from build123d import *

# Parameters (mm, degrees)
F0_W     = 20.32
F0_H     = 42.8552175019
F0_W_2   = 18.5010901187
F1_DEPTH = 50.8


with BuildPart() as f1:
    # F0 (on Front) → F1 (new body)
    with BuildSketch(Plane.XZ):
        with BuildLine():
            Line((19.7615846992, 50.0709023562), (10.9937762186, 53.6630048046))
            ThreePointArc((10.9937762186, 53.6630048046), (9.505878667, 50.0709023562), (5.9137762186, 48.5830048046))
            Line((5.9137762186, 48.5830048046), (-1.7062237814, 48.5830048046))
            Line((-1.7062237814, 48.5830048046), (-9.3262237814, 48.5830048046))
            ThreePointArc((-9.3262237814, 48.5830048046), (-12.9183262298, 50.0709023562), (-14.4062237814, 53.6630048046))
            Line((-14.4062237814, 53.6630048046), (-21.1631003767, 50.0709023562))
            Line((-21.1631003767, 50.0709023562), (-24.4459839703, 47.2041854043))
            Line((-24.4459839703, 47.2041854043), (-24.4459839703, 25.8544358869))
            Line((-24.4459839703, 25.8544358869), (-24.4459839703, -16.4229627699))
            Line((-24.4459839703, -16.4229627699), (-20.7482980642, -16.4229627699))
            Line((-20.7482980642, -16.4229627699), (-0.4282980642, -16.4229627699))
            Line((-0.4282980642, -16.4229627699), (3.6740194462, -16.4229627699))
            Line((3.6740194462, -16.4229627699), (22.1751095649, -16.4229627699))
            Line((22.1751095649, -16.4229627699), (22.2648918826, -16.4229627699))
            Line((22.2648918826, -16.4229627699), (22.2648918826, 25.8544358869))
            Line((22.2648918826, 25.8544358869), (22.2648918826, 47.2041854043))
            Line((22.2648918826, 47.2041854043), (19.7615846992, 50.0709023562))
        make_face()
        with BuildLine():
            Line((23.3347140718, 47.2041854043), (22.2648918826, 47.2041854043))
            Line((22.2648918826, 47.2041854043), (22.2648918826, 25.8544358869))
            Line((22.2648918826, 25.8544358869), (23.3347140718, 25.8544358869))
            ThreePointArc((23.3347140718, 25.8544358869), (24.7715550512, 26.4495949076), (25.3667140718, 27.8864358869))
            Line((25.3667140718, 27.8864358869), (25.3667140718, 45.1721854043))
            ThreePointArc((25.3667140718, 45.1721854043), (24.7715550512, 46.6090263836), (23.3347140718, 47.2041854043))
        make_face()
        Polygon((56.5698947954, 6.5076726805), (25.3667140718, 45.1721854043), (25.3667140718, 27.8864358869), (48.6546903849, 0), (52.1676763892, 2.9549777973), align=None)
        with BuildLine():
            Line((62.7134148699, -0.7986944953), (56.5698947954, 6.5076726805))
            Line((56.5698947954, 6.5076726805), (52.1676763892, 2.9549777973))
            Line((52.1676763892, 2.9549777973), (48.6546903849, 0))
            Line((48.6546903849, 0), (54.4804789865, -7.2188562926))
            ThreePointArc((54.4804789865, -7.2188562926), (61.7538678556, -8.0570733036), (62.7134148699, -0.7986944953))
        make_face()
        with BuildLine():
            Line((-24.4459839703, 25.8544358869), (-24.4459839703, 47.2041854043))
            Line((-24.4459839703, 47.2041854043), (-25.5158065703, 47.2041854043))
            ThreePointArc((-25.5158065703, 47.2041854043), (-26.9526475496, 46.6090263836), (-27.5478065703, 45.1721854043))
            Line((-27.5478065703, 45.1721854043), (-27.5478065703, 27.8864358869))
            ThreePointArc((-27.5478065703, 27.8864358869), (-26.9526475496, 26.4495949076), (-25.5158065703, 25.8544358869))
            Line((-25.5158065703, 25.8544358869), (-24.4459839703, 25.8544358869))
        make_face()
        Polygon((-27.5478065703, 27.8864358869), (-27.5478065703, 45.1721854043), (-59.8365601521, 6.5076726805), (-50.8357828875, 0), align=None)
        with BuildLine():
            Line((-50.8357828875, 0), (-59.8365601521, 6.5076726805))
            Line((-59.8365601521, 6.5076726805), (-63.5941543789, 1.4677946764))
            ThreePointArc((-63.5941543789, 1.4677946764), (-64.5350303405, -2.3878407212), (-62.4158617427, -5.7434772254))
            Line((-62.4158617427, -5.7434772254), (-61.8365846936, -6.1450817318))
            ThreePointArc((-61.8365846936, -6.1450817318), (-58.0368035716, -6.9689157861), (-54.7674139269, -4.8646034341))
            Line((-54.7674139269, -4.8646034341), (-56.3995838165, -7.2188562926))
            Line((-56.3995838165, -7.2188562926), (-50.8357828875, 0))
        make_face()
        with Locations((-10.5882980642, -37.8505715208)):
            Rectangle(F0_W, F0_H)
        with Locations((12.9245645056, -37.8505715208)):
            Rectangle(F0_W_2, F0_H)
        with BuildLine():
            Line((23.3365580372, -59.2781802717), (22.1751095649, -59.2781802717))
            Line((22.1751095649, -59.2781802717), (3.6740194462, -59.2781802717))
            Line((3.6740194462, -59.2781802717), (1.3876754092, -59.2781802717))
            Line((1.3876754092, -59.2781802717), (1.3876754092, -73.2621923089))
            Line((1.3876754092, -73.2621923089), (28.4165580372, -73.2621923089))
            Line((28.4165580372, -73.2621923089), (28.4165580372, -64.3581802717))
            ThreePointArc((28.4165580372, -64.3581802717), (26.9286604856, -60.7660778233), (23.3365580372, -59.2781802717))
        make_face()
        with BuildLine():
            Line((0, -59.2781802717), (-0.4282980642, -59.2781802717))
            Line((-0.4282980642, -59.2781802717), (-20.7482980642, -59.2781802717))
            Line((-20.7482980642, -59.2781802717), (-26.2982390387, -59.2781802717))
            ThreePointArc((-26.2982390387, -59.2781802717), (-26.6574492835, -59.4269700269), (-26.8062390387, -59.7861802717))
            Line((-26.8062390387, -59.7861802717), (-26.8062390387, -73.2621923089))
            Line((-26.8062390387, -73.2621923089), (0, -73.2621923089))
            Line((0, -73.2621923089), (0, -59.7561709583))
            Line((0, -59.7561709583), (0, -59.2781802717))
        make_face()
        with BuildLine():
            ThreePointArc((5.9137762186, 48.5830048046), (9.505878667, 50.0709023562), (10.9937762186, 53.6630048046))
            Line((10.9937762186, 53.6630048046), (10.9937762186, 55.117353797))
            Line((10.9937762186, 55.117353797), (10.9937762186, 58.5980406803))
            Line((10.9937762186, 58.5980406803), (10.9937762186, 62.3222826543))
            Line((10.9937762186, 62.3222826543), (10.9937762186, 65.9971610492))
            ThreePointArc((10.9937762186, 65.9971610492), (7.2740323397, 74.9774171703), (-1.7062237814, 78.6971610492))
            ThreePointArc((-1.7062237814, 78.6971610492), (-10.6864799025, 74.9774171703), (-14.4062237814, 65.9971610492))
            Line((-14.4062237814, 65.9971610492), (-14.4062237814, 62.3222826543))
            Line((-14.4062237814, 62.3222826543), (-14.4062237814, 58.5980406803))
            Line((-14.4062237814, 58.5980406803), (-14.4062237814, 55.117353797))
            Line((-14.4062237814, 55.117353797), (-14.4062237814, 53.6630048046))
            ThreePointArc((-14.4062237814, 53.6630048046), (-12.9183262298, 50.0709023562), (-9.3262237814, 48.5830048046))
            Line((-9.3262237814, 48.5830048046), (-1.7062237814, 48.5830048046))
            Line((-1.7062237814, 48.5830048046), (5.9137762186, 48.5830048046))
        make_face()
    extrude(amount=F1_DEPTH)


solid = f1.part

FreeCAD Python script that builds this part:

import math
import FreeCAD as App
import Part
import Sketcher
Q = App.Units.Quantity

doc = App.newDocument("Part")
params = doc.addObject("Spreadsheet::Sheet", "Params")
for row, (alias, value) in enumerate([
    ("sketch1_radius", "0.5 in"),
    ("sketch1_radius2", "0.2 in"),
    ("sketch1_radius3", "0.08 in"),
    ("sketch1_radius4", "0.02 in"),
    ("pad1_length", "2 in"),
], start=1):
    params.set(f"A{row}", alias)
    params.set(f"B{row}", "=" + value)
    params.setAlias(f"B{row}", alias)

body = doc.addObject("PartDesign::Body", "Body")

# Sketch on XZ plane
sketch1 = doc.addObject("Sketcher::SketchObject", "Sketch")
body.addObject(sketch1)
sketch1.AttachmentSupport = (doc.XZ_Plane, [""])
sketch1.MapMode = "FlatFace"
sketch1.addGeometry(Part.LineSegment(App.Vector(19.76, 50.07, 0), App.Vector(10.99, 53.66, 0)), False)
sketch1.addGeometry(Part.LineSegment(App.Vector(10.99, 53.66, 0), App.Vector(10.99, 66, 0)), False)
sketch1.addGeometry(Part.ArcOfCircle(Part.Circle(App.Vector(-1.71, 66, 0), App.Vector(0, 0, 1), 12.7), math.radians(0), math.radians(90)), False)
sketch1.addGeometry(Part.ArcOfCircle(Part.Circle(App.Vector(-1.71, 66, 0), App.Vector(0, 0, 1), 12.7), math.radians(90), math.radians(180)), False)
sketch1.addGeometry(Part.LineSegment(App.Vector(-14.41, 66, 0), App.Vector(-14.41, 53.66, 0)), False)
sketch1.addGeometry(Part.LineSegment(App.Vector(-14.41, 53.66, 0), App.Vector(-21.16, 50.07, 0)), False)
sketch1.addGeometry(Part.LineSegment(App.Vector(-21.16, 50.07, 0), App.Vector(-24.45, 47.2, 0)), False)
sketch1.addGeometry(Part.LineSegment(App.Vector(-24.45, 47.2, 0), App.Vector(-25.52, 47.2, 0)), False)
sketch1.addGeometry(Part.ArcOfCircle(Part.Circle(App.Vector(-25.52, 45.17, 0), App.Vector(0, 0, 1), 2.03), math.radians(90), math.radians(180)), False)
sketch1.addGeometry(Part.LineSegment(App.Vector(-27.55, 45.17, 0), App.Vector(-59.84, 6.51, 0)), False)
sketch1.addGeometry(Part.LineSegment(App.Vector(-59.84, 6.51, 0), App.Vector(-63.59, 1.47, 0)), False)
sketch1.addGeometry(Part.ArcOfCircle(Part.Circle(App.Vector(-59.52, -1.57, 0), App.Vector(0, 0, 1), 5.08), math.radians(143), math.radians(235)), False)
sketch1.addGeometry(Part.LineSegment(App.Vector(-62.42, -5.74, 0), App.Vector(-61.84, -6.15, 0)), False)
sketch1.addGeometry(Part.ArcOfCircle(Part.Circle(App.Vector(-58.94, -1.97, 0), App.Vector(0, 0, 1), 5.08), math.radians(-125), math.radians(-35)), False)
sketch1.addGeometry(Part.LineSegment(App.Vector(-54.77, -4.86, 0), App.Vector(-56.4, -7.22, 0)), False)
sketch1.addGeometry(Part.LineSegment(App.Vector(-56.4, -7.22, 0), App.Vector(-50.84, 0, 0)), False)
sketch1.addGeometry(Part.LineSegment(App.Vector(-50.84, 0, 0), App.Vector(-27.55, 27.89, 0)), False)
sketch1.addGeometry(Part.ArcOfCircle(Part.Circle(App.Vector(-25.52, 27.89, 0), App.Vector(0, 0, 1), 2.03), math.radians(180), math.radians(270)), False)
sketch1.addGeometry(Part.LineSegment(App.Vector(-25.52, 25.85, 0), App.Vector(-24.45, 25.85, 0)), False)
sketch1.addGeometry(Part.LineSegment(App.Vector(-24.45, 25.85, 0), App.Vector(-24.45, -16.42, 0)), False)
sketch1.addGeometry(Part.LineSegment(App.Vector(-24.45, -16.42, 0), App.Vector(-20.75, -16.42, 0)), False)
sketch1.addGeometry(Part.LineSegment(App.Vector(-20.75, -16.42, 0), App.Vector(-20.75, -59.28, 0)), False)
sketch1.addGeometry(Part.LineSegment(App.Vector(-20.75, -59.28, 0), App.Vector(-26.3, -59.28, 0)), False)
sketch1.addGeometry(Part.ArcOfCircle(Part.Circle(App.Vector(-26.3, -59.79, 0), App.Vector(0, 0, 1), 0.51), math.radians(90), math.radians(180)), False)
sketch1.addGeometry(Part.LineSegment(App.Vector(-26.81, -59.79, 0), App.Vector(-26.81, -73.26, 0)), False)
sketch1.addGeometry(Part.LineSegment(App.Vector(-26.81, -73.26, 0), App.Vector(0, -73.26, 0)), False)
sketch1.addGeometry(Part.LineSegment(App.Vector(0, -73.26, 0), App.Vector(0, -59.28, 0)), False)
sketch1.addGeometry(Part.LineSegment(App.Vector(0, -59.28, 0), App.Vector(-0.43, -59.28, 0)), False)
sketch1.addGeometry(Part.LineSegment(App.Vector(-0.43, -59.28, 0), App.Vector(-0.43, -16.42, 0)), False)
sketch1.addGeometry(Part.LineSegment(App.Vector(-0.43, -16.42, 0), App.Vector(3.67, -16.42, 0)), False)
sketch1.addGeometry(Part.LineSegment(App.Vector(3.67, -16.42, 0), App.Vector(3.67, -59.28, 0)), False)
sketch1.addGeometry(Part.LineSegment(App.Vector(3.67, -59.28, 0), App.Vector(1.39, -59.28, 0)), False)
sketch1.addGeometry(Part.LineSegment(App.Vector(1.39, -59.28, 0), App.Vector(1.39, -73.26, 0)), False)
sketch1.addGeometry(Part.LineSegment(App.Vector(1.39, -73.26, 0), App.Vector(28.42, -73.26, 0)), False)
sketch1.addGeometry(Part.LineSegment(App.Vector(28.42, -73.26, 0), App.Vector(28.42, -64.36, 0)), False)
sketch1.addGeometry(Part.ArcOfCircle(Part.Circle(App.Vector(23.34, -64.36, 0), App.Vector(0, 0, 1), 5.08), math.radians(0), math.radians(90)), False)
sketch1.addGeometry(Part.LineSegment(App.Vector(23.34, -59.28, 0), App.Vector(22.18, -59.28, 0)), False)
sketch1.addGeometry(Part.LineSegment(App.Vector(22.18, -59.28, 0), App.Vector(22.18, -16.42, 0)), False)
sketch1.addGeometry(Part.LineSegment(App.Vector(22.18, -16.42, 0), App.Vector(22.26, -16.42, 0)), False)
sketch1.addGeometry(Part.LineSegment(App.Vector(22.26, -16.42, 0), App.Vector(22.26, 25.85, 0)), False)
sketch1.addGeometry(Part.LineSegment(App.Vector(22.26, 25.85, 0), App.Vector(23.33, 25.85, 0)), False)
sketch1.addGeometry(Part.ArcOfCircle(Part.Circle(App.Vector(23.33, 27.89, 0), App.Vector(0, 0, 1), 2.03), math.radians(-90), math.radians(0)), False)
sketch1.addGeometry(Part.LineSegment(App.Vector(25.37, 27.89, 0), App.Vector(48.65, 0, 0)), False)
sketch1.addGeometry(Part.LineSegment(App.Vector(48.65, 0, 0), App.Vector(54.48, -7.22, 0)), False)
sketch1.addGeometry(Part.ArcOfCircle(Part.Circle(App.Vector(58.54, -3.94, 0), App.Vector(0, 0, 1), 5.22), math.radians(-141), math.radians(37)), False)
sketch1.addGeometry(Part.LineSegment(App.Vector(62.71, -0.8, 0), App.Vector(56.57, 6.51, 0)), False)
sketch1.addGeometry(Part.LineSegment(App.Vector(56.57, 6.51, 0), App.Vector(25.37, 45.17, 0)), False)
sketch1.addGeometry(Part.ArcOfCircle(Part.Circle(App.Vector(23.33, 45.17, 0), App.Vector(0, 0, 1), 2.03), math.radians(0), math.radians(90)), False)
sketch1.addGeometry(Part.LineSegment(App.Vector(23.33, 47.2, 0), App.Vector(22.26, 47.2, 0)), False)
sketch1.addGeometry(Part.LineSegment(App.Vector(22.26, 47.2, 0), App.Vector(19.76, 50.07, 0)), False)
sketch1.addConstraint(Sketcher.Constraint("Coincident", 0, 2, 1, 1))
sketch1.addConstraint(Sketcher.Constraint("Tangent", 1, 2, 2, 1))
sketch1.addConstraint(Sketcher.Constraint("Tangent", 2, 2, 3, 1))
sketch1.addConstraint(Sketcher.Constraint("Tangent", 3, 2, 4, 1))
sketch1.addConstraint(Sketcher.Constraint("Coincident", 4, 2, 5, 1))
sketch1.addConstraint(Sketcher.Constraint("Coincident", 5, 2, 6, 1))
sketch1.addConstraint(Sketcher.Constraint("Coincident", 6, 2, 7, 1))
sketch1.addConstraint(Sketcher.Constraint("Tangent", 7, 2, 8, 1))
sketch1.addConstraint(Sketcher.Constraint("Coincident", 8, 2, 9, 1))
sketch1.addConstraint(Sketcher.Constraint("Coincident", 9, 2, 10, 1))
sketch1.addConstraint(Sketcher.Constraint("Tangent", 10, 2, 11, 1))
sketch1.addConstraint(Sketcher.Constraint("Tangent", 11, 2, 12, 1))
sketch1.addConstraint(Sketcher.Constraint("Tangent", 12, 2, 13, 1))
sketch1.addConstraint(Sketcher.Constraint("Tangent", 13, 2, 14, 1))
sketch1.addConstraint(Sketcher.Constraint("Coincident", 14, 2, 15, 1))
sketch1.addConstraint(Sketcher.Constraint("Coincident", 15, 2, 16, 1))
sketch1.addConstraint(Sketcher.Constraint("Coincident", 16, 2, 17, 1))
sketch1.addConstraint(Sketcher.Constraint("Tangent", 17, 2, 18, 1))
sketch1.addConstraint(Sketcher.Constraint("Coincident", 18, 2, 19, 1))
sketch1.addConstraint(Sketcher.Constraint("Coincident", 19, 2, 20, 1))
sketch1.addConstraint(Sketcher.Constraint("Coincident", 20, 2, 21, 1))
sketch1.addConstraint(Sketcher.Constraint("Coincident", 21, 2, 22, 1))
sketch1.addConstraint(Sketcher.Constraint("Tangent", 22, 2, 23, 1))
sketch1.addConstraint(Sketcher.Constraint("Tangent", 23, 2, 24, 1))
sketch1.addConstraint(Sketcher.Constraint("Coincident", 24, 2, 25, 1))
sketch1.addConstraint(Sketcher.Constraint("Coincident", 25, 2, 26, 1))
sketch1.addConstraint(Sketcher.Constraint("Coincident", 26, 2, 27, 1))
sketch1.addConstraint(Sketcher.Constraint("Coincident", 27, 2, 28, 1))
sketch1.addConstraint(Sketcher.Constraint("Coincident", 28, 2, 29, 1))
sketch1.addConstraint(Sketcher.Constraint("Coincident", 29, 2, 30, 1))
sketch1.addConstraint(Sketcher.Constraint("Coincident", 30, 2, 31, 1))
sketch1.addConstraint(Sketcher.Constraint("Coincident", 31, 2, 32, 1))
sketch1.addConstraint(Sketcher.Constraint("Coincident", 32, 2, 33, 1))
sketch1.addConstraint(Sketcher.Constraint("Coincident", 33, 2, 34, 1))
sketch1.addConstraint(Sketcher.Constraint("Tangent", 34, 2, 35, 1))
sketch1.addConstraint(Sketcher.Constraint("Tangent", 35, 2, 36, 1))
sketch1.addConstraint(Sketcher.Constraint("Coincident", 36, 2, 37, 1))
sketch1.addConstraint(Sketcher.Constraint("Coincident", 37, 2, 38, 1))
sketch1.addConstraint(Sketcher.Constraint("Coincident", 38, 2, 39, 1))
sketch1.addConstraint(Sketcher.Constraint("Coincident", 39, 2, 40, 1))
sketch1.addConstraint(Sketcher.Constraint("Tangent", 40, 2, 41, 1))
sketch1.addConstraint(Sketcher.Constraint("Coincident", 41, 2, 42, 1))
sketch1.addConstraint(Sketcher.Constraint("Coincident", 42, 2, 43, 1))
sketch1.addConstraint(Sketcher.Constraint("Tangent", 43, 2, 44, 1))
sketch1.addConstraint(Sketcher.Constraint("Coincident", 44, 2, 45, 1))
sketch1.addConstraint(Sketcher.Constraint("Coincident", 45, 2, 46, 1))
sketch1.addConstraint(Sketcher.Constraint("Coincident", 46, 2, 47, 1))
sketch1.addConstraint(Sketcher.Constraint("Tangent", 47, 2, 48, 1))
sketch1.addConstraint(Sketcher.Constraint("Coincident", 48, 2, 49, 1))
sketch1.addConstraint(Sketcher.Constraint("Coincident", 49, 2, 0, 1))
sketch1.addConstraint(Sketcher.Constraint("Vertical", 1))
sketch1.addConstraint(Sketcher.Constraint("Vertical", 4))
sketch1.addConstraint(Sketcher.Constraint("Horizontal", 7))
sketch1.addConstraint(Sketcher.Constraint("Horizontal", 18))
sketch1.addConstraint(Sketcher.Constraint("Vertical", 19))
sketch1.addConstraint(Sketcher.Constraint("Horizontal", 20))
sketch1.addConstraint(Sketcher.Constraint("Vertical", 21))
sketch1.addConstraint(Sketcher.Constraint("Horizontal", 22))
sketch1.addConstraint(Sketcher.Constraint("Vertical", 24))
sketch1.addConstraint(Sketcher.Constraint("Horizontal", 25))
sketch1.addConstraint(Sketcher.Constraint("Vertical", 26))
sketch1.addConstraint(Sketcher.Constraint("Horizontal", 27))
sketch1.addConstraint(Sketcher.Constraint("Vertical", 28))
sketch1.addConstraint(Sketcher.Constraint("Horizontal", 29))
sketch1.addConstraint(Sketcher.Constraint("Vertical", 30))
sketch1.addConstraint(Sketcher.Constraint("Horizontal", 31))
sketch1.addConstraint(Sketcher.Constraint("Vertical", 32))
sketch1.addConstraint(Sketcher.Constraint("Horizontal", 33))
sketch1.addConstraint(Sketcher.Constraint("Vertical", 34))
sketch1.addConstraint(Sketcher.Constraint("Horizontal", 36))
sketch1.addConstraint(Sketcher.Constraint("Vertical", 37))
sketch1.addConstraint(Sketcher.Constraint("Horizontal", 38))
sketch1.addConstraint(Sketcher.Constraint("Vertical", 39))
sketch1.addConstraint(Sketcher.Constraint("Horizontal", 40))
sketch1.addConstraint(Sketcher.Constraint("Horizontal", 48))
sketch1.addConstraint(Sketcher.Constraint("Equal", 2, 3))
sketch1.addConstraint(Sketcher.Constraint("Equal", 11, 13))
sketch1.addConstraint(Sketcher.Constraint("Equal", 8, 17))
sketch1.addConstraint(Sketcher.Constraint("Equal", 13, 35))
sketch1.addConstraint(Sketcher.Constraint("Equal", 17, 41))
sketch1.addConstraint(Sketcher.Constraint("Equal", 41, 47))
sketch1.addConstraint(Sketcher.Constraint("PointOnObject", 15, 2, -1))
sketch1.addConstraint(Sketcher.Constraint("PointOnObject", 25, 2, -2))
sketch1.addConstraint(Sketcher.Constraint("PointOnObject", 42, 2, -1))
sketch1.addConstraint(Sketcher.Constraint("Perpendicular", 12, 14))
sketch1.addConstraint(Sketcher.Constraint("Parallel", 9, 16))
sketch1.addConstraint(Sketcher.Constraint("Parallel", 43, 46))
sketch1.addConstraint(Sketcher.Constraint("Perpendicular", 6, 49))
sketch1.addConstraint(Sketcher.Constraint("Horizontal", 17, 3, 41, 3))
sketch1.addConstraint(Sketcher.Constraint("Horizontal", 8, 3, 47, 3))
sketch1.addConstraint(Sketcher.Constraint("Horizontal", 0, 2, 4, 2))
sketch1.addConstraint(Sketcher.Constraint("Horizontal", 47, 3, 8, 2))
sketch1.addConstraint(Sketcher.Constraint("Horizontal", 41, 3, 16, 2))
sketch1.addConstraint(Sketcher.Constraint("Horizontal", 22, 2, 26, 2))
sketch1.addConstraint(Sketcher.Constraint("Horizontal", 20, 2, 28, 2))
sketch1.addConstraint(Sketcher.Constraint("Horizontal", 27, 2, 30, 2))
sketch1.addConstraint(Sketcher.Constraint("Horizontal", 25, 2, 32, 2))
sketch1.addConstraint(Sketcher.Constraint("Horizontal", 31, 2, 35, 2))
sketch1.addConstraint(Sketcher.Constraint("Horizontal", 29, 2, 37, 2))
sketch1.addConstraint(Sketcher.Constraint("Horizontal", 16, 2, 41, 2))
sketch1.addConstraint(Sketcher.Constraint("Horizontal", 14, 2, 43, 2))
sketch1.addConstraint(Sketcher.Constraint("Horizontal", 9, 2, 45, 2))
sketch1.addConstraint(Sketcher.Constraint("Horizontal", 8, 2, 46, 2))
sketch1.addConstraint(Sketcher.Constraint("Horizontal", 5, 2, 49, 2))
sketch1.addConstraint(Sketcher.Constraint("Vertical", 8, 3, 17, 3))
sketch1.addConstraint(Sketcher.Constraint("Vertical", 41, 3, 47, 3))
sketch1.addConstraint(Sketcher.Constraint("Vertical", 3, 3, 2, 2))
sketch1.addConstraint(Sketcher.Constraint("Vertical", 6, 2, 18, 2))
sketch1.addConstraint(Sketcher.Constraint("Vertical", 39, 2, 48, 2))
sketch1.addConstraint(Sketcher.Constraint("Equal", 18, 40))
sketch1.addConstraint(Sketcher.Constraint("Equal", 16, 42))
sketch1.addConstraint(Sketcher.Constraint("Radius", 2, Q("0.5 in")))
sketch1.addConstraint(Sketcher.Constraint("Radius", 11, Q("0.2 in")))
sketch1.addConstraint(Sketcher.Constraint("Radius", 8, Q("0.08 in")))
sketch1.addConstraint(Sketcher.Constraint("Radius", 23, Q("0.02 in")))
sketch1.addConstraint(Sketcher.Constraint("DistanceX", 27, 2, 27, 1, Q("0.428298 mm")))
sketch1.addConstraint(Sketcher.Constraint("DistanceY", 19, 2, 19, 1, Q("42.277399 mm")))
sketch1.addConstraint(Sketcher.Constraint("Radius", 44, Q("5.220874 mm")))
sketch1.addConstraint(Sketcher.Constraint("DistanceX", 22, 2, 22, 1, Q("5.549941 mm")))
sketch1.addConstraint(Sketcher.Constraint("DistanceX", 25, 1, 25, 2, Q("26.806239 mm")))
sketch1.addConstraint(Sketcher.Constraint("DistanceX", 36, 2, 36, 1, Q("1.161448 mm")))
sketch1.addConstraint(Sketcher.Constraint("DistanceX", 5, 2, -1, 1, Q("21.1631 mm")))
sketch1.addConstraint(Sketcher.Constraint("Distance", 6, Q("4.35837 mm")))
sketch1.addConstraint(Sketcher.Constraint("DistanceX", 7, 2, 7, 1, Q("1.069823 mm")))
sketch1.addConstraint(Sketcher.Constraint("DistanceX", 20, 1, 20, 2, Q("3.697686 mm")))
sketch1.addConstraint(Sketcher.Constraint("DistanceX", 29, 1, 29, 2, Q("4.102318 mm")))
sketch1.addConstraint(Sketcher.Constraint("DistanceX", 31, 2, 31, 1, Q("2.286344 mm")))
sketch1.addConstraint(Sketcher.Constraint("DistanceX", 33, 1, 33, 2, Q("27.028883 mm")))
sketch1.addConstraint(Sketcher.Constraint("DistanceX", 38, 1, 38, 2, Q("0.089782 mm")))
sketch1.addConstraint(Sketcher.Constraint("DistanceY", 1, 1, 1, 2, Q("12.334156 mm")))
sketch1.addConstraint(Sketcher.Constraint("DistanceY", 21, 2, 21, 1, Q("42.855218 mm")))
sketch1.addConstraint(Sketcher.Constraint("DistanceY", 24, 2, 24, 1, Q("13.476012 mm")))
sketch1.addConstraint(Sketcher.Constraint("DistanceY", -1, 1, 2, 3, Q("65.997161 mm")))
sketch1.addConstraint(Sketcher.Constraint("DistanceX", 13, 3, -1, 1, Q("58.942238 mm")))
sketch1.addConstraint(Sketcher.Constraint("DistanceY", 23, 3, -1, 1, Q("59.78618 mm")))
sketch1.addConstraint(Sketcher.Constraint("DistanceX", -1, 1, 44, 3, Q("58.543339 mm")))
sketch1.addConstraint(Sketcher.Constraint("DistanceY", 44, 3, -1, 1, Q("3.940031 mm")))
sketch1.addConstraint(Sketcher.Constraint("DistanceX", 9, 2, -1, 1, Q("59.83656 mm")))
sketch1.addConstraint(Sketcher.Constraint("DistanceX", 11, 2, -1, 1, Q("62.415862 mm")))
sketch1.addConstraint(Sketcher.Constraint("DistanceY", 12, 2, -1, 1, Q("6.145082 mm")))
sketch1.addConstraint(Sketcher.Constraint("DistanceX", -1, 1, 42, 2, Q("48.65469 mm")))
sketch1.addConstraint(Sketcher.Constraint("Distance", 0, Q("9.475108 mm")))
sketch1.addConstraint(Sketcher.Constraint("Distance", 5, Q("7.652358 mm")))
sketch1.addConstraint(Sketcher.Constraint("Distance", 10, Q("6.286484 mm")))
sketch1.addConstraint(Sketcher.Constraint("Distance", 45, Q("9.545986 mm")))
sketch1.setExpression("Constraints[111]", "Params.sketch1_radius")
sketch1.setExpression("Constraints[112]", "Params.sketch1_radius2")
sketch1.setExpression("Constraints[113]", "Params.sketch1_radius3")
sketch1.setExpression("Constraints[114]", "Params.sketch1_radius4")
pad1 = doc.addObject("PartDesign::Pad", "Pad")
body.addObject(pad1)
pad1.Profile = sketch1
pad1.setExpression("Length", "Params.pad1_length")

doc.recompute()
